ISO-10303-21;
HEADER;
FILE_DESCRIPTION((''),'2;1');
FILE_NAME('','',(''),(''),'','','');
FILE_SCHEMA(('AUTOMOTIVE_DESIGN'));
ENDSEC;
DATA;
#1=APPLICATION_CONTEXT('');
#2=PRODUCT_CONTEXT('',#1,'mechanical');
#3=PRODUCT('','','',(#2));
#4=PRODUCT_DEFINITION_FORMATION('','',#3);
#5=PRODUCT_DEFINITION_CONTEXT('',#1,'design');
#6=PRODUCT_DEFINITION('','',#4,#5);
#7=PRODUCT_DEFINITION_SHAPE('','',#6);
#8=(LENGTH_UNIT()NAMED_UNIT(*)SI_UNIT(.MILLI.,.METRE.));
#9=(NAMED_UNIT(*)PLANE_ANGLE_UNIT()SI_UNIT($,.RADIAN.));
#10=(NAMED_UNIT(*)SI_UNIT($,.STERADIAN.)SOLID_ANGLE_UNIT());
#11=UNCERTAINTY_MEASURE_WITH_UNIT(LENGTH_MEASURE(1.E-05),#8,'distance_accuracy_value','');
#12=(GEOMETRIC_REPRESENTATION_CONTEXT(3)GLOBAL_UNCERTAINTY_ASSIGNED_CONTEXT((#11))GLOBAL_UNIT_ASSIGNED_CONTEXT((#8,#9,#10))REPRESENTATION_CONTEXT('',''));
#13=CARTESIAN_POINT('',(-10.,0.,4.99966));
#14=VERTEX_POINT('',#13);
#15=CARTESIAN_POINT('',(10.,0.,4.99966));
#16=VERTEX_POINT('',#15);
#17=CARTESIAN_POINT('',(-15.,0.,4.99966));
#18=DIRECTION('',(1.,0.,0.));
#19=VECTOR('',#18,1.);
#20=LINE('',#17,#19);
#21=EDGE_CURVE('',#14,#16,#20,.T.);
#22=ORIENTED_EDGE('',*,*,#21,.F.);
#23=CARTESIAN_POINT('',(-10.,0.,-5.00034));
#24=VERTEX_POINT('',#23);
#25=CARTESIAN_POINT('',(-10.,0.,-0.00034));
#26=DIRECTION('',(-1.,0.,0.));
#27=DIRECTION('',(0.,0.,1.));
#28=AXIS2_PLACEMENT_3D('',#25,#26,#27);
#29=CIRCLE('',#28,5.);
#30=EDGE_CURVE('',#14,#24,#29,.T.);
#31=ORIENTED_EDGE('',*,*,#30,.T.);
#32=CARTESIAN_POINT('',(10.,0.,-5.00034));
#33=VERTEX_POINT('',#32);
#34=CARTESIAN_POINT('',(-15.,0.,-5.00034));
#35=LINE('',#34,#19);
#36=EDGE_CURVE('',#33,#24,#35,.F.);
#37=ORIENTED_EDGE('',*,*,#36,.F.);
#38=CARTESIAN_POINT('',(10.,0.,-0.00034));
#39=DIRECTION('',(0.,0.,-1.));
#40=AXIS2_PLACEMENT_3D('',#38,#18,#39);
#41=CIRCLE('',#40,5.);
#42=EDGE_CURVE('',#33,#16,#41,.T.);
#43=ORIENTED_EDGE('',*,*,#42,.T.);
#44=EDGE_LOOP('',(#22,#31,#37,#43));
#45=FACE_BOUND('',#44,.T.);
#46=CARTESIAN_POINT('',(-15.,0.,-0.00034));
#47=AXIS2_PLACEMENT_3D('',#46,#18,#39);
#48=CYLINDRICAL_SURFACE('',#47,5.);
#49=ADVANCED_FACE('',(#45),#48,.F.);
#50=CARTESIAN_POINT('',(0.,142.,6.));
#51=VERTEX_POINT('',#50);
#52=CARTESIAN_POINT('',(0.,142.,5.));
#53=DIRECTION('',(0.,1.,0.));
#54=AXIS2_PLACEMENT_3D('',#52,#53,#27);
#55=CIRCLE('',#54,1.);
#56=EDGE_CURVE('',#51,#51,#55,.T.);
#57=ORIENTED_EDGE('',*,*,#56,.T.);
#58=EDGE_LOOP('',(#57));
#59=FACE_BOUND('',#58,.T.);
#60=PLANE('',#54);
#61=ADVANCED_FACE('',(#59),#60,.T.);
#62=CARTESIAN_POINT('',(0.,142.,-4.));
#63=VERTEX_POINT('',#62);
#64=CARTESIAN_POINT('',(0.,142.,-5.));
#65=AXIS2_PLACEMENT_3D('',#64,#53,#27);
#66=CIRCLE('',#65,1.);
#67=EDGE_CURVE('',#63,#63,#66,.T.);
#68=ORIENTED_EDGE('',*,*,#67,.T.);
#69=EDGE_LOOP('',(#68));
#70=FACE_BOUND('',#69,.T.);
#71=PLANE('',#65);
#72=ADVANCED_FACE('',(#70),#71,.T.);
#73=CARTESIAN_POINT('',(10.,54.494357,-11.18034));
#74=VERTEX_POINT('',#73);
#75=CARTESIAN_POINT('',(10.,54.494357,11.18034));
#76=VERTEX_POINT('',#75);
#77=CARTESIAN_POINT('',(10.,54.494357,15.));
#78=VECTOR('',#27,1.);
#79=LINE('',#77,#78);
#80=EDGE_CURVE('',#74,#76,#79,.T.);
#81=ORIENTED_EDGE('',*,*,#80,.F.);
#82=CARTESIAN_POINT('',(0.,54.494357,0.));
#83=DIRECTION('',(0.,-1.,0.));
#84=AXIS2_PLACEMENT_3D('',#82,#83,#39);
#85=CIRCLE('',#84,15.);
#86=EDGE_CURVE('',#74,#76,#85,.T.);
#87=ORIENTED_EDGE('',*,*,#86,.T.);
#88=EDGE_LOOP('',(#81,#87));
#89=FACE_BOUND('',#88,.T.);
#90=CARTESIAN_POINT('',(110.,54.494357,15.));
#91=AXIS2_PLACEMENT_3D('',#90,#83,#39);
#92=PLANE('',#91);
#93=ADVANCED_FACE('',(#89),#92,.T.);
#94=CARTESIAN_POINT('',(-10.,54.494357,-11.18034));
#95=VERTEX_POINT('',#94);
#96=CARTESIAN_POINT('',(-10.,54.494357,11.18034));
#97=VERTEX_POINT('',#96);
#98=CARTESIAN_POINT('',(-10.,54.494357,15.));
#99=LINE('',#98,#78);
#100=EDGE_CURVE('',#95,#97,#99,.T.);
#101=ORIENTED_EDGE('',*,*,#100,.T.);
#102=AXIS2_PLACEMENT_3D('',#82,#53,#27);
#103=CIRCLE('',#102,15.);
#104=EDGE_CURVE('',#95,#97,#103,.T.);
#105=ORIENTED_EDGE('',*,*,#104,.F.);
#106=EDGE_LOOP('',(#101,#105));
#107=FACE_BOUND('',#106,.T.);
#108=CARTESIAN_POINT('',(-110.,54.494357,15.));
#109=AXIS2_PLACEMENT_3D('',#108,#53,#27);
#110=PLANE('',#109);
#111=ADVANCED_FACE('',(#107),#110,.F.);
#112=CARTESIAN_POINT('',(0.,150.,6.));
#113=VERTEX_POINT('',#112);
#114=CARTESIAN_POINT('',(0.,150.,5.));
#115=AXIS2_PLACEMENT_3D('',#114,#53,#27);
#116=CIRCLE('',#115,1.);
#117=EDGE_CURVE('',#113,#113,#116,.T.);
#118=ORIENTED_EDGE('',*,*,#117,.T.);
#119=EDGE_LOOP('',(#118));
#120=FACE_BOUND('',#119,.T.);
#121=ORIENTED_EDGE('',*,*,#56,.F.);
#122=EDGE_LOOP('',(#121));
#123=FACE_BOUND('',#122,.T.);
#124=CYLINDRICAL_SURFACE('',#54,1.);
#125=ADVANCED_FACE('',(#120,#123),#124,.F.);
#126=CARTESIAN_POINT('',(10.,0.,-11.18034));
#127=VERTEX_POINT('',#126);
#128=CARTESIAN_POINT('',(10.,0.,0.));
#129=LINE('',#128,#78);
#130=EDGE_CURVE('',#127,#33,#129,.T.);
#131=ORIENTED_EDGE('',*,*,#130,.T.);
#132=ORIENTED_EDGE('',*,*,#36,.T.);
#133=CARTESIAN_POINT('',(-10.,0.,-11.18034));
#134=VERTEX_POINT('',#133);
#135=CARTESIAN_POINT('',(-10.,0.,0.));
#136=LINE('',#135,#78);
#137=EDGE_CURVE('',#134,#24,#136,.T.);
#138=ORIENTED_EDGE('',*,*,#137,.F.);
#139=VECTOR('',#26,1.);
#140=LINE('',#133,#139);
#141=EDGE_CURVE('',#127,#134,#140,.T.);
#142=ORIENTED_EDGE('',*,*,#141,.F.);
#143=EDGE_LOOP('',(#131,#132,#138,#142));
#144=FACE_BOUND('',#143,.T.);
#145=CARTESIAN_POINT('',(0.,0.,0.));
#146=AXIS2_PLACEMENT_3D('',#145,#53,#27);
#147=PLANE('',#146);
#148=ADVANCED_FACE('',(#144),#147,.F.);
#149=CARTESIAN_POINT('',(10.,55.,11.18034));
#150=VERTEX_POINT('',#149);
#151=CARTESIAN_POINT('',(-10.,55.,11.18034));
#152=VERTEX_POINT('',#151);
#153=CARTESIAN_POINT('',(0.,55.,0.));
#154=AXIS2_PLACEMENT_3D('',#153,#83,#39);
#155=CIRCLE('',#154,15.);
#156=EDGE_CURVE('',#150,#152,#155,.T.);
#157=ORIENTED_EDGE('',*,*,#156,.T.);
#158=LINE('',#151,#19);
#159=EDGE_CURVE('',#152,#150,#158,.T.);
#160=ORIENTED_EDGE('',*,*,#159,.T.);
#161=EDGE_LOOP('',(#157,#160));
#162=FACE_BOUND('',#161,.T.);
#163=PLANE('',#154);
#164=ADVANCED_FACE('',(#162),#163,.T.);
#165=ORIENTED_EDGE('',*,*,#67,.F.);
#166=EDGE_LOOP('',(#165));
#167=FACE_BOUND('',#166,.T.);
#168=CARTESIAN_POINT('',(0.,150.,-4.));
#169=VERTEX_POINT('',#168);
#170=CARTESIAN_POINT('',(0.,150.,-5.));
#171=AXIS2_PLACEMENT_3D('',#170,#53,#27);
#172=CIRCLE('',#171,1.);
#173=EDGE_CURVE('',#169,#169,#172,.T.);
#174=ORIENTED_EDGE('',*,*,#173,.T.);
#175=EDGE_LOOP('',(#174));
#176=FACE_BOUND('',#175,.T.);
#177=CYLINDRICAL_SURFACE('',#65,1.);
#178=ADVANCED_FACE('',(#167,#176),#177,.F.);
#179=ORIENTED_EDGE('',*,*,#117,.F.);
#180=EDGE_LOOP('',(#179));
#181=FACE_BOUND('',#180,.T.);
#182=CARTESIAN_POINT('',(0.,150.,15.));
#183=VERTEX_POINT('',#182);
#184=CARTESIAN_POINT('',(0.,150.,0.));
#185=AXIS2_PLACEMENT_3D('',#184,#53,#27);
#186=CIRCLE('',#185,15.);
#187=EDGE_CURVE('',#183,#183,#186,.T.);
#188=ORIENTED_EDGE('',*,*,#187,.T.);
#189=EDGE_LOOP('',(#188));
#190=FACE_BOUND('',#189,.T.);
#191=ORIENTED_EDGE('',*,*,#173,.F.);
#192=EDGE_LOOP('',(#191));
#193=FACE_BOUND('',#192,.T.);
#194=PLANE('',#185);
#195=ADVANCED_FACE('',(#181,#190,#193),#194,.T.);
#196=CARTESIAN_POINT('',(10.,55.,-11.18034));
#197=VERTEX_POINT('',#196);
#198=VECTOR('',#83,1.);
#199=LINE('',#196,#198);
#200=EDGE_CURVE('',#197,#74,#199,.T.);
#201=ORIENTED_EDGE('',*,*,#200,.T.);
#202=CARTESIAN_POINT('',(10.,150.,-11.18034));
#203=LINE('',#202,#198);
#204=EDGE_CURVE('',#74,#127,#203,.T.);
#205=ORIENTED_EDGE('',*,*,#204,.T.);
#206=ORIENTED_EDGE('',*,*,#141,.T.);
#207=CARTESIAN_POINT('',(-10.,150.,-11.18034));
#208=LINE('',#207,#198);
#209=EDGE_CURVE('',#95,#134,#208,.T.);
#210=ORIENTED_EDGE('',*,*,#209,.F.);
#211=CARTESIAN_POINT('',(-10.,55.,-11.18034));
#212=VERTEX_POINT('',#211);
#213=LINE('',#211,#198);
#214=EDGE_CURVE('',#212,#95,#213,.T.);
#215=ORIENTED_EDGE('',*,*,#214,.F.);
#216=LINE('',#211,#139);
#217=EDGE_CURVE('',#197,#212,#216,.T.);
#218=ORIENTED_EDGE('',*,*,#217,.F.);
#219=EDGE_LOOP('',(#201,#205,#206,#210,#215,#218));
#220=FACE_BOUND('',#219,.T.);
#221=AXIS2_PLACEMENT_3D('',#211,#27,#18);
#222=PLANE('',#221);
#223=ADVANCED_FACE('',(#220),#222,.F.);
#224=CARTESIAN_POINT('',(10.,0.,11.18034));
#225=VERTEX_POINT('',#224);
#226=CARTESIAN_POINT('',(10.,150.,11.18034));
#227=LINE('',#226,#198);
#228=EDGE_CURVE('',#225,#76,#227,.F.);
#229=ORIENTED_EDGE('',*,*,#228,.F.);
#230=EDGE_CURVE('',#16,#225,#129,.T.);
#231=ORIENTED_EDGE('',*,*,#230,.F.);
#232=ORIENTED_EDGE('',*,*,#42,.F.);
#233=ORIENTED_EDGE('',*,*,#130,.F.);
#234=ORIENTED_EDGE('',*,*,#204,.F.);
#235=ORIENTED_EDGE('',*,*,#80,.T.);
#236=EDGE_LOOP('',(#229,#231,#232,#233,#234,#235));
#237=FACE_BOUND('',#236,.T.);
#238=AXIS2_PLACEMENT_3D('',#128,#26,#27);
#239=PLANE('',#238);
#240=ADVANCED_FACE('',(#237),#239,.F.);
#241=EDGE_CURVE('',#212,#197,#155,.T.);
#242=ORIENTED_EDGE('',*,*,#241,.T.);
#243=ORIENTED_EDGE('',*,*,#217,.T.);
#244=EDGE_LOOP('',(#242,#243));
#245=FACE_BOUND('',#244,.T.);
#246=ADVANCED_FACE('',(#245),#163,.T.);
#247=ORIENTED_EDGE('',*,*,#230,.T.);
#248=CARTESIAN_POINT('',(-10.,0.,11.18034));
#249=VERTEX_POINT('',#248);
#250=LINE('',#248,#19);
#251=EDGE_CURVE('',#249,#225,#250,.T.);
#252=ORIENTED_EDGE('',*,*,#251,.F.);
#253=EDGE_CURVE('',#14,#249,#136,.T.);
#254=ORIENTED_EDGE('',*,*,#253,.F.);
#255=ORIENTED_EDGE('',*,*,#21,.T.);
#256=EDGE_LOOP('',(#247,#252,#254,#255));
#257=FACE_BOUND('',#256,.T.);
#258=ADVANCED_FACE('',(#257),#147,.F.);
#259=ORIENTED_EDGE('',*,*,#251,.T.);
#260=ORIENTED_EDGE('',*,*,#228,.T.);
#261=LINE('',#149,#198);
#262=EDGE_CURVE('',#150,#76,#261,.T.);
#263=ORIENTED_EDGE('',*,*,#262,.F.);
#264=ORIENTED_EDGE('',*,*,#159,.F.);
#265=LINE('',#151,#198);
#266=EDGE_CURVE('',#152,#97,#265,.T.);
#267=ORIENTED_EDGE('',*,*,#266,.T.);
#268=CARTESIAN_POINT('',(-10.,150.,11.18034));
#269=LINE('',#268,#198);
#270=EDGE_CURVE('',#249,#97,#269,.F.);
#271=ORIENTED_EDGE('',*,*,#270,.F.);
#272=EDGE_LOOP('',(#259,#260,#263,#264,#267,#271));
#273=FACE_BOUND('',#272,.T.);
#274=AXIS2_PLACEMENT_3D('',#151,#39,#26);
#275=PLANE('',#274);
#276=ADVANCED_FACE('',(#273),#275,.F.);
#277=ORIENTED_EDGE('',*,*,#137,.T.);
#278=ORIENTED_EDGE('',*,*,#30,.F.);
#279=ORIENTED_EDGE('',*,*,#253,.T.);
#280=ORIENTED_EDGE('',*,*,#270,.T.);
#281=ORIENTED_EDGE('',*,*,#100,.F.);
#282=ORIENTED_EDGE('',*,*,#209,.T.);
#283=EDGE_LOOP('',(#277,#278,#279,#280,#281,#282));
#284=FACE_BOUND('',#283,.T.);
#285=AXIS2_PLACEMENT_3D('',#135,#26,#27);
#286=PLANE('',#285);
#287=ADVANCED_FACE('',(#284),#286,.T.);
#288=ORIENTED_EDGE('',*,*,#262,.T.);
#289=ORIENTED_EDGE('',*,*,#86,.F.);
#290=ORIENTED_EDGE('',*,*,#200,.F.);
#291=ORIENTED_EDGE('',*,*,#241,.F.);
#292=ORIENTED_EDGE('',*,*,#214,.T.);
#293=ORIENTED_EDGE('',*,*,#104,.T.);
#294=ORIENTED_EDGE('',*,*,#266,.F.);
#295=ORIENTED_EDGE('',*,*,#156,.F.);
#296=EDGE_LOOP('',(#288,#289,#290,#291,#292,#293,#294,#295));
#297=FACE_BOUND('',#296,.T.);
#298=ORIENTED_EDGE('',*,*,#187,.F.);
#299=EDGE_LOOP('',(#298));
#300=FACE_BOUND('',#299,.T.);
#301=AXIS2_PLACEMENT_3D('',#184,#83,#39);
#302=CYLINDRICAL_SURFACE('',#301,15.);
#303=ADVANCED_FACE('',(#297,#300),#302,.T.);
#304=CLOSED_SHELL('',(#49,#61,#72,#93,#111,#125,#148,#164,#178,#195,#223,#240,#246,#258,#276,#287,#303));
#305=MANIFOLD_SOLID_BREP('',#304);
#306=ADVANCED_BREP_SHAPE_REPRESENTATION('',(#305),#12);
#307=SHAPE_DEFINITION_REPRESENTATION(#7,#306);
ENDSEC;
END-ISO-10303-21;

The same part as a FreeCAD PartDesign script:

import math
import FreeCAD as App
import Part
import Sketcher

V = App.Vector
Q = App.Units.Quantity

doc = App.newDocument("Part")
body = doc.addObject("PartDesign::Body", "Body")

# Sketch on XZ plane
sketch1 = body.newObject("Sketcher::SketchObject", "Sketch")
sketch1.AttachmentSupport = (doc.getObject("XZ_Plane"), [""])
sketch1.MapMode = "FlatFace"
sketch1.addGeometry(Part.Circle(V(0, 0, 0), V(0, 0, 1), 15), False)
sketch1.addConstraint(Sketcher.Constraint("Coincident", 0, 3, -1, 1))
sketch1.addConstraint(Sketcher.Constraint("Diameter", 0, Q("30 mm")))
pad1 = body.newObject("PartDesign::Pad", "Pad")
pad1.Profile = sketch1
pad1.Length = 150
pad1.Reversed = True

# Sketch on YZ plane
sketch2 = body.newObject("Sketcher::SketchObject", "Sketch001")
sketch2.AttachmentSupport = (doc.getObject("YZ_Plane"), [""])
sketch2.MapMode = "FlatFace"
sketch2.AttachmentOffset = App.Placement(V(0, 0, 10), App.Rotation())
sketch2.addGeometry(Part.LineSegment(V(54, 15, 0), V(-54, 15, 0)), False)
sketch2.addGeometry(Part.LineSegment(V(-54, 15, 0), V(-54, -15, 0)), False)
sketch2.addGeometry(Part.LineSegment(V(-54, -15, 0), V(54, -15, 0)), False)
sketch2.addGeometry(Part.LineSegment(V(54, -15, 0), V(54, 15, 0)), False)
sketch2.addConstraint(Sketcher.Constraint("Coincident", 0, 2, 1, 1))
sketch2.addConstraint(Sketcher.Constraint("Coincident", 1, 2, 2, 1))
sketch2.addConstraint(Sketcher.Constraint("Coincident", 2, 2, 3, 1))
sketch2.addConstraint(Sketcher.Constraint("Coincident", 3, 2, 0, 1))
sketch2.addConstraint(Sketcher.Constraint("Horizontal", 0))
sketch2.addConstraint(Sketcher.Constraint("Vertical", 1))
sketch2.addConstraint(Sketcher.Constraint("Horizontal", 2))
sketch2.addConstraint(Sketcher.Constraint("Vertical", 3))
sketch2.addConstraint(Sketcher.Constraint("Symmetric", 0, 2, 2, 2, -1, 1))
sketch2.addConstraint(Sketcher.Constraint("DistanceY", 1, 2, 1, 1, Q("30 mm")))
sketch2.addConstraint(Sketcher.Constraint("DistanceX", 0, 2, 0, 1, Q("108.988714 mm")))
pocket1 = body.newObject("PartDesign::Pocket", "Pocket")
pocket1.Profile = sketch2
pocket1.Length = 100
pocket1.Reversed = True

# Sketch on YZ plane
sketch3 = body.newObject("Sketcher::SketchObject", "Sketch002")
sketch3.AttachmentSupport = (doc.getObject("YZ_Plane"), [""])
sketch3.MapMode = "FlatFace"
sketch3.AttachmentOffset = App.Placement(V(0, 0, -10), App.Rotation())
sketch3.addGeometry(Part.LineSegment(V(54, 15, 0), V(-54, 15, 0)), False)
sketch3.addGeometry(Part.LineSegment(V(-54, 15, 0), V(-54, -15, 0)), False)
sketch3.addGeometry(Part.LineSegment(V(-54, -15, 0), V(54, -15, 0)), False)
sketch3.addGeometry(Part.LineSegment(V(54, -15, 0), V(54, 15, 0)), False)
sketch3.addConstraint(Sketcher.Constraint("Coincident", 0, 2, 1, 1))
sketch3.addConstraint(Sketcher.Constraint("Coincident", 1, 2, 2, 1))
sketch3.addConstraint(Sketcher.Constraint("Coincident", 2, 2, 3, 1))
sketch3.addConstraint(Sketcher.Constraint("Coincident", 3, 2, 0, 1))
sketch3.addConstraint(Sketcher.Constraint("Horizontal", 0))
sketch3.addConstraint(Sketcher.Constraint("Vertical", 1))
sketch3.addConstraint(Sketcher.Constraint("Horizontal", 2))
sketch3.addConstraint(Sketcher.Constraint("Vertical", 3))
sketch3.addConstraint(Sketcher.Constraint("Symmetric", 0, 2, 2, 2, -1, 1))
sketch3.addConstraint(Sketcher.Constraint("DistanceY", 1, 2, 1, 1, Q("30 mm")))
sketch3.addConstraint(Sketcher.Constraint("DistanceX", 0, 2, 0, 1, Q("108.988714 mm")))
pocket2 = body.newObject("PartDesign::Pocket", "Pocket001")
pocket2.Profile = sketch3
pocket2.Length = 100

# Sketch on XZ plane
sketch4 = body.newObject("Sketcher::SketchObject", "Sketch003")
sketch4.AttachmentSupport = (doc.getObject("XZ_Plane"), [""])
sketch4.MapMode = "FlatFace"
sketch4.addGeometry(Part.LineSegment(V(-10, 11, 0), V(10, 11, 0)), False)
sketch4.addGeometry(Part.ArcOfCircle(Part.Circle(V(0, 0, 0), V(0, 0, 1), 15), math.radians(48), math.radians(132)), False)
sketch4.addGeometry(Part.LineSegment(V(10, -11, 0), V(-10, -11, 0)), False)
sketch4.addGeometry(Part.ArcOfCircle(Part.Circle(V(0, 0, 0), V(0, 0, 1), 15), math.radians(-132), math.radians(-48)), False)
sketch4.addConstraint(Sketcher.Constraint("Coincident", 0, 1, 1, 2))
sketch4.addConstraint(Sketcher.Constraint("Coincident", 1, 1, 0, 2))
sketch4.addConstraint(Sketcher.Constraint("Coincident", 2, 1, 3, 2))
sketch4.addConstraint(Sketcher.Constraint("Coincident", 3, 1, 2, 2))
sketch4.addConstraint(Sketcher.Constraint("Horizontal", 0))
sketch4.addConstraint(Sketcher.Constraint("Horizontal", 2))
sketch4.addConstraint(Sketcher.Constraint("Coincident", 1, 3, -1, 1))
sketch4.addConstraint(Sketcher.Constraint("Coincident", 3, 3, -1, 1))
sketch4.addConstraint(Sketcher.Constraint("Equal", 1, 3))
sketch4.addConstraint(Sketcher.Constraint("Vertical", 1, 1, 2, 1))
sketch4.addConstraint(Sketcher.Constraint("Radius", 1, Q("15 mm")))
sketch4.addConstraint(Sketcher.Constraint("DistanceX", 0, 1, 0, 2, Q("20 mm")))
pocket3 = body.newObject("PartDesign::Pocket", "Pocket002")
pocket3.Profile = sketch4
pocket3.Length = 55

# Sketch on YZ plane
sketch5 = body.newObject("Sketcher::SketchObject", "Sketch004")
sketch5.AttachmentSupport = (doc.getObject("YZ_Plane"), [""])
sketch5.MapMode = "FlatFace"
sketch5.AttachmentOffset = App.Placement(V(0, 0, 10), App.Rotation())
sketch5.addGeometry(Part.Circle(V(0, 0, 0), V(0, 0, 1), 5), False)
sketch5.addConstraint(Sketcher.Constraint("PointOnObject", 0, 3, -2))
sketch5.addConstraint(Sketcher.Constraint("Diameter", 0, Q("10 mm")))
sketch5.addConstraint(Sketcher.Constraint("DistanceY", 0, 3, -1, 1, Q("0.00034 mm")))
pocket4 = body.newObject("PartDesign::Pocket", "Pocket003")
pocket4.Profile = sketch5
pocket4.Type = "ThroughAll"

# Sketch on XZ plane
sketch6 = body.newObject("Sketcher::SketchObject", "Sketch005")
sketch6.AttachmentSupport = (doc.getObject("XZ_Plane"), [""])
sketch6.MapMode = "FlatFace"
sketch6.AttachmentOffset = App.Placement(V(0, 0, -150), App.Rotation())
sketch6.addGeometry(Part.Circle(V(0, -5, 0), V(0, 0, 1), 1), False)
sketch6.addGeometry(Part.Circle(V(0, 5, 0), V(0, 0, 1), 1), False)
sketch6.addConstraint(Sketcher.Constraint("Equal", 0, 1))
sketch6.addConstraint(Sketcher.Constraint("Symmetric", 0, 3, 1, 3, -1, 1))
sketch6.addConstraint(Sketcher.Constraint("PointOnObject", 0, 3, -2))
sketch6.addConstraint(Sketcher.Constraint("Diameter", 0, Q("2 mm")))
sketch6.addConstraint(Sketcher.Constraint("DistanceY", 0, 3, -1, 1, Q("5 mm")))
pocket5 = body.newObject("PartDesign::Pocket", "Pocket004")
pocket5.Profile = sketch6
pocket5.Length = 8
pocket5.Reversed = True

doc.recompute()
